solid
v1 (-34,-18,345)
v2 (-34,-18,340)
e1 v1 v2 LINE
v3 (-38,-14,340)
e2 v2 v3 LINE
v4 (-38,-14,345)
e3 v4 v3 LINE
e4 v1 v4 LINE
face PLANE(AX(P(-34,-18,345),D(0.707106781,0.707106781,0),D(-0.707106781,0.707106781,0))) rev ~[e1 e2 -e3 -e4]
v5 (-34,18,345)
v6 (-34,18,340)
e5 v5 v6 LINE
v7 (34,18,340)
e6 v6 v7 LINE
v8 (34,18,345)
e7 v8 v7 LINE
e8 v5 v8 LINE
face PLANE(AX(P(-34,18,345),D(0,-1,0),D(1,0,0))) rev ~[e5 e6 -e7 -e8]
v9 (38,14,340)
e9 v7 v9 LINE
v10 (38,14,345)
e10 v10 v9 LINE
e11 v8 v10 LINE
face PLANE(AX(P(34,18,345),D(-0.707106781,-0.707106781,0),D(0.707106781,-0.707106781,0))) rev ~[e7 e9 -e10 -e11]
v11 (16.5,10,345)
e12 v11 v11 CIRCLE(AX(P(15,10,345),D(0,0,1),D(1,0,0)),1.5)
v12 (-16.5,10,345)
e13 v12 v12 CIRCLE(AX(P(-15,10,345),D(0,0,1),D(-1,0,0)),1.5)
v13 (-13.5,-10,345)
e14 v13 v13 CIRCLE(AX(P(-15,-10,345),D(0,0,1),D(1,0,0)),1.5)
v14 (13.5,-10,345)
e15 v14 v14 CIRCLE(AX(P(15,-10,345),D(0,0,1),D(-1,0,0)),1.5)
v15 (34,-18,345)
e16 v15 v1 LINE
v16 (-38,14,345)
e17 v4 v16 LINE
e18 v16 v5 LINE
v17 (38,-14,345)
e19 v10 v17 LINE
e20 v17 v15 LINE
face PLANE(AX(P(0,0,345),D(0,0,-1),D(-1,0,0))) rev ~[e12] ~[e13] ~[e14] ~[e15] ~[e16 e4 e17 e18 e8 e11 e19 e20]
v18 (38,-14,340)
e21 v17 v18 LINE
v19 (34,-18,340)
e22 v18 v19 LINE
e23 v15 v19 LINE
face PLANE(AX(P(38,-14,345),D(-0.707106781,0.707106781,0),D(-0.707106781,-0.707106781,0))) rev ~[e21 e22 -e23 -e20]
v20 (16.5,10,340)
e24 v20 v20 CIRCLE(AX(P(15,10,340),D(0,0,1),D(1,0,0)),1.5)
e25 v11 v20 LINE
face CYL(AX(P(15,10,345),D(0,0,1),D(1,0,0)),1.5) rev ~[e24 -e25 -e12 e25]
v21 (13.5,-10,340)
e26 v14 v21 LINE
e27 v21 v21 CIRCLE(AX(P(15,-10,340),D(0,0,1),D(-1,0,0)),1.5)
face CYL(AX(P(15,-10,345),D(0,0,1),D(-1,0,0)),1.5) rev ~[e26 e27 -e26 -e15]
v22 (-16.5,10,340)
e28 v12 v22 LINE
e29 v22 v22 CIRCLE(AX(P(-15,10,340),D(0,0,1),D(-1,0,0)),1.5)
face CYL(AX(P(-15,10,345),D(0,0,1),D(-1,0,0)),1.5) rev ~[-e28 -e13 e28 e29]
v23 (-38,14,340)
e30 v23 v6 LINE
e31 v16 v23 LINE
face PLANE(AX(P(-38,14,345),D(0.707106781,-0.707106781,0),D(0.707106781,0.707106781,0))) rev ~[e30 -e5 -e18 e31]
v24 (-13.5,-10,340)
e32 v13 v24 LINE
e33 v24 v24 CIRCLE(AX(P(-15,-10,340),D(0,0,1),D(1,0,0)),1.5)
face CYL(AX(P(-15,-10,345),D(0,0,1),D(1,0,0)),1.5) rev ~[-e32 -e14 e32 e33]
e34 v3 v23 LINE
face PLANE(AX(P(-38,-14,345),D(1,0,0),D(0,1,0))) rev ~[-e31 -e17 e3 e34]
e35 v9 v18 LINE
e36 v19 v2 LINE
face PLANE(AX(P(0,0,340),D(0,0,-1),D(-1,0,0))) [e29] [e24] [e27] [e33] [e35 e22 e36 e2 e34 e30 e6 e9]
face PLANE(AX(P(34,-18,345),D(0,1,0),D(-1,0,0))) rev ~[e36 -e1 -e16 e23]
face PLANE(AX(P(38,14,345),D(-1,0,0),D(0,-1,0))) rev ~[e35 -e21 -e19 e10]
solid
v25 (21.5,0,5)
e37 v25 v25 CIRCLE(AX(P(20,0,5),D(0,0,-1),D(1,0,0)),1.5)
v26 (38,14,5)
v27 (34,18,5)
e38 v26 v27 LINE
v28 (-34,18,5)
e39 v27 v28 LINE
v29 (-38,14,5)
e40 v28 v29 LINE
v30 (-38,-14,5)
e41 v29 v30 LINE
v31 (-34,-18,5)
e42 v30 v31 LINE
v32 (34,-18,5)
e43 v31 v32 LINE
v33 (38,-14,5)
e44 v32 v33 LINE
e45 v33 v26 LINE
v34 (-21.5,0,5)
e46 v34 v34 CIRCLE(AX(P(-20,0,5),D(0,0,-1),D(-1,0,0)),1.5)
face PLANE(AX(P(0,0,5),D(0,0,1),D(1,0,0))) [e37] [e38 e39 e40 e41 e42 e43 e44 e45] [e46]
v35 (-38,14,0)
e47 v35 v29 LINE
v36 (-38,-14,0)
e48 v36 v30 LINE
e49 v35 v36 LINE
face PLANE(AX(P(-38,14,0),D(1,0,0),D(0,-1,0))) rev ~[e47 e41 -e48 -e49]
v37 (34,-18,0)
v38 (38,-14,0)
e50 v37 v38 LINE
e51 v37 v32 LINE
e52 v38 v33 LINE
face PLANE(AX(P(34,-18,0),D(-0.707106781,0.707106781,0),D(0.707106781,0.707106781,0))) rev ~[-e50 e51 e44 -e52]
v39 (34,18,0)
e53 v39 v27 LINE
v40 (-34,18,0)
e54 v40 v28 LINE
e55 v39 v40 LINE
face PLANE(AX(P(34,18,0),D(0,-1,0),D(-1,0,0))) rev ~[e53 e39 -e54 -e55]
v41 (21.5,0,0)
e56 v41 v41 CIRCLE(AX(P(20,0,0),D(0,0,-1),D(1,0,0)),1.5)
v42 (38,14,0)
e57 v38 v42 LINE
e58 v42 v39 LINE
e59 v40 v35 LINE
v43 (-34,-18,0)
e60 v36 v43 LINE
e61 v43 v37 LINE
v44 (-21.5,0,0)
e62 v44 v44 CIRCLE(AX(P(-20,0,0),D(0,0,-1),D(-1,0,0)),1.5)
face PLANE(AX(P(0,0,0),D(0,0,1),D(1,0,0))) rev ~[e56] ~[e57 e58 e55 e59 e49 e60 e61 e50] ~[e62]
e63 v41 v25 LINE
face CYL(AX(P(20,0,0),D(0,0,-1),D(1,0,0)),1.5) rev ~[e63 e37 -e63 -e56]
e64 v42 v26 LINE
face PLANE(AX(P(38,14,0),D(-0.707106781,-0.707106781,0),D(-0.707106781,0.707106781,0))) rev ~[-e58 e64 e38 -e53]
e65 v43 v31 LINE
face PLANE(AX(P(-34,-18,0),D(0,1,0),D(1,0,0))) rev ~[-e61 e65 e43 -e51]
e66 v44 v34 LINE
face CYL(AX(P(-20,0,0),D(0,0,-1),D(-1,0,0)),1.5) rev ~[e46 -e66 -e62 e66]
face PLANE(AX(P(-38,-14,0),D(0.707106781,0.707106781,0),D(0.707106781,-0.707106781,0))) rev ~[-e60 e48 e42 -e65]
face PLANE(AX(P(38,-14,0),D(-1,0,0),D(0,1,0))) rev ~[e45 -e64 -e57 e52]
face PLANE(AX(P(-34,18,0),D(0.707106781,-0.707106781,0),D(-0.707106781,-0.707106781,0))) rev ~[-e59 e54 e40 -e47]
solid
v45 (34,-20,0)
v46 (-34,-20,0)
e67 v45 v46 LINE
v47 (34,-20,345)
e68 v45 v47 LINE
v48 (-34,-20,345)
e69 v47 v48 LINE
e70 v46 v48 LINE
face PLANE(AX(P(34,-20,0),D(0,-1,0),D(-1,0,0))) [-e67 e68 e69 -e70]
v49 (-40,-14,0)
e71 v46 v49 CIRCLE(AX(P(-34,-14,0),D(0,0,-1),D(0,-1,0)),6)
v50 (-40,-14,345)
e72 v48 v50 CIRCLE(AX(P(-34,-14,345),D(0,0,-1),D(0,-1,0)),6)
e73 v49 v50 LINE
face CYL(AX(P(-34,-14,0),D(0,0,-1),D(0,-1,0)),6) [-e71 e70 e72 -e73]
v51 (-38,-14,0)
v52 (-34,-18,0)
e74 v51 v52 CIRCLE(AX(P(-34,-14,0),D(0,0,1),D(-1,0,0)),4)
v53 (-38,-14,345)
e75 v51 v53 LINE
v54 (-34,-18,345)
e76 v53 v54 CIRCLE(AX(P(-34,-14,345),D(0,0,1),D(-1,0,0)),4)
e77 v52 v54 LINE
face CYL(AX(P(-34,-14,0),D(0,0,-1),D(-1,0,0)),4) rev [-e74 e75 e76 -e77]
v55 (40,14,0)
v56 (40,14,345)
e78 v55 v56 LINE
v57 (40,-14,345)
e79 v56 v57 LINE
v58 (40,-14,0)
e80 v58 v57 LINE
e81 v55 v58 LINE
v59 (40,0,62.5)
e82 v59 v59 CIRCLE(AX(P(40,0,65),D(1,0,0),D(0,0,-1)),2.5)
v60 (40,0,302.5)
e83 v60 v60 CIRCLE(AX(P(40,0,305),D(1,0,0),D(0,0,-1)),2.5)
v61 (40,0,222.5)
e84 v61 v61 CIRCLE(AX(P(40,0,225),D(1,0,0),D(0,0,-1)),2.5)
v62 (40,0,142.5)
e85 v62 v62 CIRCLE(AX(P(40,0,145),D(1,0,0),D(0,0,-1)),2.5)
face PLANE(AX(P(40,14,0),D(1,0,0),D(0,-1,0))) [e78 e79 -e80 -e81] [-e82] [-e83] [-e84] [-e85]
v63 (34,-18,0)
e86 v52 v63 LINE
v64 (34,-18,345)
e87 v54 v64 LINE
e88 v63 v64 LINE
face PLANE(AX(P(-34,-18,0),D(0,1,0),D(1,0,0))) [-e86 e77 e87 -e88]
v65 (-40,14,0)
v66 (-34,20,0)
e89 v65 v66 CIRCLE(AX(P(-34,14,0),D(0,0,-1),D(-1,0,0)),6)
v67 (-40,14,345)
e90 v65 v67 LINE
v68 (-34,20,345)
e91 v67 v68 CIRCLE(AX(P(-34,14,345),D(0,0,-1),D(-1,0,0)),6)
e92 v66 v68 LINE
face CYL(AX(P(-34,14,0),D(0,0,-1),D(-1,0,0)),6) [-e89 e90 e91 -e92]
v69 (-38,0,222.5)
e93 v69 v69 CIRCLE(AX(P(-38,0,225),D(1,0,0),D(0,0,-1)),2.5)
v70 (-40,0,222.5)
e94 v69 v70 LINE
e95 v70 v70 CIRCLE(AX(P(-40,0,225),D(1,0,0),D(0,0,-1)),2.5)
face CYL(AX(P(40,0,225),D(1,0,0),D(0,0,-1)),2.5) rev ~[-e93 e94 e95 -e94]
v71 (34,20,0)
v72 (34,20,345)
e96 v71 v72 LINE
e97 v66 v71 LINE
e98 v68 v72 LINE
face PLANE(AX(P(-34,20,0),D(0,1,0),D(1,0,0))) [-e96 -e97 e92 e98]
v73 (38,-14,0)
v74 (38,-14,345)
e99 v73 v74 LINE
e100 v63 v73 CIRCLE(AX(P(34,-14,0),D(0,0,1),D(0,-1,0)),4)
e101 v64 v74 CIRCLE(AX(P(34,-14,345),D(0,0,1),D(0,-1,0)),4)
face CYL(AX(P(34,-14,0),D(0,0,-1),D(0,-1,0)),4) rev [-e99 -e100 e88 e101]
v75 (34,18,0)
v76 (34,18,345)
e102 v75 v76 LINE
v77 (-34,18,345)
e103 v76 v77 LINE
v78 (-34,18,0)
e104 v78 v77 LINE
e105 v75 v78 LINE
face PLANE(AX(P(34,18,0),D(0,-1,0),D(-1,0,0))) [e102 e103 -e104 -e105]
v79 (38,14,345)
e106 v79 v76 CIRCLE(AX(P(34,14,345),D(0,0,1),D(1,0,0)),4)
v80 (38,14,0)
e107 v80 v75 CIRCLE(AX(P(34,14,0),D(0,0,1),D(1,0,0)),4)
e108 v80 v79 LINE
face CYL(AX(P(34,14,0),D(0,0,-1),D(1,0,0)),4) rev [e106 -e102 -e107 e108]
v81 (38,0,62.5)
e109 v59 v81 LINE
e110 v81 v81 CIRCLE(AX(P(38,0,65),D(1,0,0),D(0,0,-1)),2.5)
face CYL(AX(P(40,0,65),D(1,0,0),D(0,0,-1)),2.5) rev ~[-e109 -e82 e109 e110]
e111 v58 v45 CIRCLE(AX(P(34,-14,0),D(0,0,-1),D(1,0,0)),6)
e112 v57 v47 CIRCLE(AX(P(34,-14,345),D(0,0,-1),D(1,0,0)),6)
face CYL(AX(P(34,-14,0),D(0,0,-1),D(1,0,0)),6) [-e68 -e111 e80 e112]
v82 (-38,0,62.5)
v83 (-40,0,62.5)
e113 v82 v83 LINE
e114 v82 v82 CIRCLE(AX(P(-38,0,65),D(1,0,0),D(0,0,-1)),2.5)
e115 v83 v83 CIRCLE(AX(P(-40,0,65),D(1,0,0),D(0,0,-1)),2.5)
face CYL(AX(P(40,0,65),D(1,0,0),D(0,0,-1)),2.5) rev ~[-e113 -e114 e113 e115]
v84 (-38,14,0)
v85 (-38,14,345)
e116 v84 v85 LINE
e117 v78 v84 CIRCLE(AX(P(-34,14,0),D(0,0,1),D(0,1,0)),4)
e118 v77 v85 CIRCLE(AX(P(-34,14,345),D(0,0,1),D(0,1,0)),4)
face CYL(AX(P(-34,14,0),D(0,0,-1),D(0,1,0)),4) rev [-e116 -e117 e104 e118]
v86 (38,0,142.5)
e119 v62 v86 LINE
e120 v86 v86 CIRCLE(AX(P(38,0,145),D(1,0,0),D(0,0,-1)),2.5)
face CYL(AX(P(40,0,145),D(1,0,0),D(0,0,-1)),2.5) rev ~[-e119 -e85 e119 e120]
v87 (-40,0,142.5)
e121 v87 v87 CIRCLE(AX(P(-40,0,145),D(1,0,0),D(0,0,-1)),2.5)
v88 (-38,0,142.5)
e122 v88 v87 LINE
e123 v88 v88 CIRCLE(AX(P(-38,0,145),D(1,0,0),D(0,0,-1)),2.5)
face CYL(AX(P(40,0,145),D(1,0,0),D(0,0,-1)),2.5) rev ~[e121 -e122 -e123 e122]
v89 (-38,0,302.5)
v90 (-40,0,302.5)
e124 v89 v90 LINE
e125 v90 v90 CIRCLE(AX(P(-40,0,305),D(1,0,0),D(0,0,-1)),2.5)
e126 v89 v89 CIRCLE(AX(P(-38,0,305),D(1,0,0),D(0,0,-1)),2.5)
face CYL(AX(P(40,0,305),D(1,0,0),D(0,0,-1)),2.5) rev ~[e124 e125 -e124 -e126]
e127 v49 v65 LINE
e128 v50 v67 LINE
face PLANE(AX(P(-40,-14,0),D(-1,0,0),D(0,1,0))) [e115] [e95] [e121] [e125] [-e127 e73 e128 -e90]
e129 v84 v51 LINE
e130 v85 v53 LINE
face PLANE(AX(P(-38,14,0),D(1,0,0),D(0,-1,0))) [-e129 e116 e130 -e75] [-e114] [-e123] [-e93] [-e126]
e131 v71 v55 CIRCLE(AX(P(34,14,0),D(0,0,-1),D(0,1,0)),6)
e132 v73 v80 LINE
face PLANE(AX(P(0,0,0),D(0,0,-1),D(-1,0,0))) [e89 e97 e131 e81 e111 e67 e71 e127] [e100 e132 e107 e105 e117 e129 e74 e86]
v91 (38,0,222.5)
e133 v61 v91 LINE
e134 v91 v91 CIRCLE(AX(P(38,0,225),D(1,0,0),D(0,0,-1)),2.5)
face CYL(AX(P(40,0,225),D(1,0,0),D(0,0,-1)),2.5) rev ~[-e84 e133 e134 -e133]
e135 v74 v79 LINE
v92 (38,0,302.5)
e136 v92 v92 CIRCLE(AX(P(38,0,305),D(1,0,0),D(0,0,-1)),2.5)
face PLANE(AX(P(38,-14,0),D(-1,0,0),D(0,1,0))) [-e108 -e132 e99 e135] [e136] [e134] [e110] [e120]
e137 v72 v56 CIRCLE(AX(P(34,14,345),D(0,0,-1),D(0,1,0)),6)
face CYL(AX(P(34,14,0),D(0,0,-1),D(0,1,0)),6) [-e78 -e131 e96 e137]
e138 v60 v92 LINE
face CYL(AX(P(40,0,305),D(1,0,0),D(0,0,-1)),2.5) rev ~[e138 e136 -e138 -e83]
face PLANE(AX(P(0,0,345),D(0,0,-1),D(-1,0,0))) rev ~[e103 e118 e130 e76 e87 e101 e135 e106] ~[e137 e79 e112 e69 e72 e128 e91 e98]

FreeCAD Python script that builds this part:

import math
import FreeCAD as App
import Part
import Sketcher
from FreeCAD import Vector
Q = App.Units.Quantity


def add_polygon(sketch, points):
    """Adds a closed chain of lines whose ends are joined by coincident constraints."""
    first, n = sketch.GeometryCount, len(points)
    for a, b in zip(points, points[1:] + points[:1]):
        sketch.addGeometry(Part.LineSegment(App.Vector(*a, 0), App.Vector(*b, 0)), False)
    for i in range(n):
        sketch.addConstraint(Sketcher.Constraint("Coincident", first + i, 2, first + (i + 1) % n, 1))

doc = App.newDocument("Part")
body = doc.addObject("PartDesign::Body", "Body")

sketch1 = body.newObject("Sketcher::SketchObject", "Sketch")
sketch1.AttachmentSupport = (doc.getObject("XY_Plane"), [""])
sketch1.MapMode = "FlatFace"
sketch1.addGeometry([
    Part.LineSegment(Vector(34, 20, 0), Vector(-34, 20, 0)),
    Part.ArcOfCircle(Part.Circle(Vector(-34, 14, 0), Vector(0, 0, 1), 6), math.radians(90), math.radians(180)),
    Part.LineSegment(Vector(-40, 14, 0), Vector(-40, -14, 0)),
    Part.ArcOfCircle(Part.Circle(Vector(-34, -14, 0), Vector(0, 0, 1), 6), math.radians(180), math.radians(270)),
    Part.LineSegment(Vector(-34, -20, 0), Vector(34, -20, 0)),
    Part.ArcOfCircle(Part.Circle(Vector(34, -14, 0), Vector(0, 0, 1), 6), math.radians(-90), math.radians(0)),
    Part.LineSegment(Vector(40, -14, 0), Vector(40, 14, 0)),
    Part.ArcOfCircle(Part.Circle(Vector(34, 14, 0), Vector(0, 0, 1), 6), math.radians(0), math.radians(90)),
    Part.ArcOfCircle(Part.Circle(Vector(-34, 14, 0), Vector(0, 0, 1), 4), math.radians(90), math.radians(180)),
    Part.LineSegment(Vector(-34, 18, 0), Vector(34, 18, 0)),
    Part.ArcOfCircle(Part.Circle(Vector(34, 14, 0), Vector(0, 0, 1), 4), math.radians(0), math.radians(90)),
    Part.LineSegment(Vector(38, 14, 0), Vector(38, -14, 0)),
    Part.ArcOfCircle(Part.Circle(Vector(34, -14, 0), Vector(0, 0, 1), 4), math.radians(-90), math.radians(0)),
    Part.LineSegment(Vector(34, -18, 0), Vector(-34, -18, 0)),
    Part.ArcOfCircle(Part.Circle(Vector(-34, -14, 0), Vector(0, 0, 1), 4), math.radians(180), math.radians(270)),
    Part.LineSegment(Vector(-38, -14, 0), Vector(-38, 14, 0)),
], False)
sketch1.addConstraint([
    Sketcher.Constraint("Tangent", 0, 2, 1, 1),
    Sketcher.Constraint("Tangent", 1, 2, 2, 1),
    Sketcher.Constraint("Tangent", 2, 2, 3, 1),
    Sketcher.Constraint("Tangent", 3, 2, 4, 1),
    Sketcher.Constraint("Tangent", 4, 2, 5, 1),
    Sketcher.Constraint("Tangent", 5, 2, 6, 1),
    Sketcher.Constraint("Tangent", 6, 2, 7, 1),
    Sketcher.Constraint("Tangent", 7, 2, 0, 1),
    Sketcher.Constraint("Tangent", 8, 1, 9, 1),
    Sketcher.Constraint("Tangent", 9, 2, 10, 2),
    Sketcher.Constraint("Tangent", 10, 1, 11, 1),
    Sketcher.Constraint("Tangent", 11, 2, 12, 2),
    Sketcher.Constraint("Tangent", 12, 1, 13, 1),
    Sketcher.Constraint("Tangent", 13, 2, 14, 2),
    Sketcher.Constraint("Tangent", 14, 1, 15, 1),
    Sketcher.Constraint("Tangent", 15, 2, 8, 2),
    Sketcher.Constraint("Horizontal", 0),
    Sketcher.Constraint("Vertical", 2),
    Sketcher.Constraint("Horizontal", 4),
    Sketcher.Constraint("Vertical", 6),
    Sketcher.Constraint("Horizontal", 9),
    Sketcher.Constraint("Vertical", 11),
    Sketcher.Constraint("Horizontal", 13),
    Sketcher.Constraint("Vertical", 15),
    Sketcher.Constraint("Coincident", 8, 3, 1, 3),
    Sketcher.Constraint("Coincident", 10, 3, 7, 3),
    Sketcher.Constraint("Coincident", 12, 3, 5, 3),
    Sketcher.Constraint("Equal", 1, 3),
    Sketcher.Constraint("Equal", 3, 5),
    Sketcher.Constraint("Equal", 5, 7),
    Sketcher.Constraint("Equal", 12, 14),
    Sketcher.Constraint("Symmetric", 1, 3, 5, 3, -1, 1),
    Sketcher.Constraint("Radius", 1, Q("6 mm")),
    Sketcher.Constraint("Radius", 8, Q("4 mm")),
    Sketcher.Constraint("DistanceX", 0, 2, 0, 1, Q("68 mm")),
    Sketcher.Constraint("DistanceY", 2, 2, 2, 1, Q("28 mm")),
])
pad1 = body.newObject("PartDesign::Pad", "Pad")
pad1.Profile = sketch1
pad1.Length = 345

sketch2 = body.newObject("Sketcher::SketchObject", "Sketch001")
sketch2.AttachmentSupport = (doc.getObject("YZ_Plane"), [""])
sketch2.MapMode = "FlatFace"
sketch2.AttachmentOffset = App.Placement(Vector(0, 0, 40), App.Rotation())
sketch2.addGeometry([
    Part.Circle(Vector(0, 305, 0), Vector(0, 0, 1), 2.5),
    Part.Circle(Vector(0, 225, 0), Vector(0, 0, 1), 2.5),
    Part.Circle(Vector(0, 145, 0), Vector(0, 0, 1), 2.5),
    Part.Circle(Vector(0, 65, 0), Vector(0, 0, 1), 2.5),
], False)
sketch2.addConstraint([
    Sketcher.Constraint("Equal", 0, 1),
    Sketcher.Constraint("Equal", 1, 2),
    Sketcher.Constraint("Equal", 2, 3),
    Sketcher.Constraint("PointOnObject", 0, 3, -2),
    Sketcher.Constraint("PointOnObject", 1, 3, -2),
    Sketcher.Constraint("PointOnObject", 2, 3, -2),
    Sketcher.Constraint("PointOnObject", 3, 3, -2),
    Sketcher.Constraint("Diameter", 0, Q("5 mm")),
    Sketcher.Constraint("DistanceY", -1, 1, 0, 3, Q("305 mm")),
    Sketcher.Constraint("DistanceY", -1, 1, 1, 3, Q("225 mm")),
    Sketcher.Constraint("DistanceY", -1, 1, 2, 3, Q("145 mm")),
    Sketcher.Constraint("DistanceY", -1, 1, 3, 3, Q("65 mm")),
])
pocket1 = body.newObject("PartDesign::Pocket", "Pocket")
pocket1.Profile = sketch2
pocket1.Length = 100
body2 = doc.addObject("PartDesign::Body", "Body001")

sketch3 = body2.newObject("Sketcher::SketchObject", "Sketch002")
sketch3.AttachmentSupport = (doc.getObject("XY_Plane001"), [""])
sketch3.MapMode = "FlatFace"
add_polygon(sketch3, [(-38, -14), (-38, 14), (-34, 18), (34, 18), (38, 14), (38, -14), (34, -18), (-34, -18)])
sketch3.addConstraint([
    Sketcher.Constraint("Vertical", 0),
    Sketcher.Constraint("Horizontal", 2),
    Sketcher.Constraint("Vertical", 4),
    Sketcher.Constraint("Horizontal", 6),
    Sketcher.Constraint("Symmetric", 0, 2, 4, 2, -1, 1),
    Sketcher.Constraint("Symmetric", 1, 2, 5, 2, -1, 1),
    Sketcher.Constraint("Perpendicular", 1, 3),
    Sketcher.Constraint("Perpendicular", 5, 7),
    Sketcher.Constraint("Horizontal", 0, 2, 3, 2),
    Sketcher.Constraint("Horizontal", 4, 2, 7, 2),
    Sketcher.Constraint("Vertical", 2, 2, 5, 2),
    Sketcher.Constraint("DistanceX", 2, 1, 2, 2, Q("68 mm")),
    Sketcher.Constraint("DistanceY", 0, 1, 0, 2, Q("28 mm")),
    Sketcher.Constraint("DistanceX", 0, 2, -1, 1, Q("38 mm")),
])
pad2 = body2.newObject("PartDesign::Pad", "Pad001")
pad2.Profile = sketch3
pad2.Length = 5

sketch4 = body2.newObject("Sketcher::SketchObject", "Sketch003")
sketch4.AttachmentSupport = (doc.getObject("XY_Plane001"), [""])
sketch4.MapMode = "FlatFace"
sketch4.addGeometry([
    Part.Circle(Vector(-20, 0, 0), Vector(0, 0, 1), 1.5),
    Part.Circle(Vector(20, 0, 0), Vector(0, 0, 1), 1.5),
], False)
sketch4.addConstraint([
    Sketcher.Constraint("Equal", 0, 1),
    Sketcher.Constraint("Symmetric", 0, 3, 1, 3, -1, 1),
    Sketcher.Constraint("PointOnObject", 0, 3, -1),
    Sketcher.Constraint("Diameter", 0, Q("3 mm")),
    Sketcher.Constraint("DistanceX", 0, 3, -1, 1, Q("20 mm")),
])
pocket2 = body2.newObject("PartDesign::Pocket", "Pocket001")
pocket2.Profile = sketch4
pocket2.Length = 10
pocket2.Reversed = True
body3 = doc.addObject("PartDesign::Body", "Body002")

sketch5 = body3.newObject("Sketcher::SketchObject", "Sketch004")
sketch5.AttachmentSupport = (doc.getObject("XY_Plane002"), [""])
sketch5.MapMode = "FlatFace"
sketch5.AttachmentOffset = App.Placement(Vector(0, 0, 345), App.Rotation())
add_polygon(sketch5, [(38, 14), (34, 18), (-34, 18), (-38, 14), (-38, -14), (-34, -18), (34, -18), (38, -14)])
sketch5.addConstraint([
    Sketcher.Constraint("Horizontal", 1),
    Sketcher.Constraint("Vertical", 3),
    Sketcher.Constraint("Horizontal", 5),
    Sketcher.Constraint("Vertical", 7),
    Sketcher.Constraint("Symmetric", 0, 2, 4, 2, -1, 1),
    Sketcher.Constraint("Symmetric", 2, 2, 6, 2, -1, 1),
    Sketcher.Constraint("Perpendicular", 0, 2),
    Sketcher.Constraint("Perpendicular", 2, 4),
    Sketcher.Constraint("Perpendicular", 4, 6),
    Sketcher.Constraint("Horizontal", 3, 2, 6, 2),
    Sketcher.Constraint("Vertical", 1, 2, 4, 2),
    Sketcher.Constraint("DistanceX", 1, 2, 1, 1, Q("68 mm")),
    Sketcher.Constraint("DistanceY", 3, 2, 3, 1, Q("28 mm")),
    Sketcher.Constraint("DistanceY", -1, 1, 0, 2, Q("18 mm")),
])
pad3 = body3.newObject("PartDesign::Pad", "Pad002")
pad3.Profile = sketch5
pad3.Length = 5
pad3.Reversed = True

sketch6 = body3.newObject("Sketcher::SketchObject", "Sketch005")
sketch6.AttachmentSupport = (doc.getObject("XY_Plane002"), [""])
sketch6.MapMode = "FlatFace"
sketch6.AttachmentOffset = App.Placement(Vector(0, 0, 345), App.Rotation())
sketch6.addGeometry([
    Part.Circle(Vector(15, 10, 0), Vector(0, 0, 1), 1.5),
    Part.Circle(Vector(-15, 10, 0), Vector(0, 0, 1), 1.5),
    Part.Circle(Vector(15, -10, 0), Vector(0, 0, 1), 1.5),
    Part.Circle(Vector(-15, -10, 0), Vector(0, 0, 1), 1.5),
], False)
sketch6.addConstraint([
    Sketcher.Constraint("Equal", 0, 1),
    Sketcher.Constraint("Equal", 1, 2),
    Sketcher.Constraint("Equal", 2, 3),
    Sketcher.Constraint("Symmetric", 1, 3, 2, 3, -1, 1),
    Sketcher.Constraint("Symmetric", 0, 3, 3, 3, -1, 1),
    Sketcher.Constraint("Symmetric", 0, 3, 1, 3, -2),
    Sketcher.Constraint("Diameter", 0, Q("3 mm")),
    Sketcher.Constraint("DistanceX", -1, 1, 0, 3, Q("15 mm")),
    Sketcher.Constraint("DistanceY", -1, 1, 0, 3, Q("10 mm")),
])
pocket3 = body3.newObject("PartDesign::Pocket", "Pocket002")
pocket3.Profile = sketch6
pocket3.Length = 10

doc.recompute()
